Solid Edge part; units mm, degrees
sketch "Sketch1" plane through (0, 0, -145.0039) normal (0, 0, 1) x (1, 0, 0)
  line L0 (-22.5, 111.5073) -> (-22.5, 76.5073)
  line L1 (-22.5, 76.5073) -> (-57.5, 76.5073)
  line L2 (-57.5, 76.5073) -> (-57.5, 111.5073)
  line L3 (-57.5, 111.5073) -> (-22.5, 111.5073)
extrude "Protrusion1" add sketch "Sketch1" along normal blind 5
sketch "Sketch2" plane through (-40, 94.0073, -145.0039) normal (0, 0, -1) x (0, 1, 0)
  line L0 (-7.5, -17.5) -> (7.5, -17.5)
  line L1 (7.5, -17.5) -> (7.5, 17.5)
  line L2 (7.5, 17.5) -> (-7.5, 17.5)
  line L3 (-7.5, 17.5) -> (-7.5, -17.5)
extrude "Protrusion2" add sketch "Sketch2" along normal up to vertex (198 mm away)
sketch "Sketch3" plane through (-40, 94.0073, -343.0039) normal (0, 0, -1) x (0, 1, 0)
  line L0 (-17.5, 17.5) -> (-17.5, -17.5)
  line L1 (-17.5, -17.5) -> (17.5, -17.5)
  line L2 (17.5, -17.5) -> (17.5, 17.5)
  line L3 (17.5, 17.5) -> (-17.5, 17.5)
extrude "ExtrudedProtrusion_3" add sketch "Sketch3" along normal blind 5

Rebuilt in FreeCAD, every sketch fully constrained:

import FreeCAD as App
import Part
import Sketcher

V = App.Vector
Q = App.Units.Quantity

doc = App.newDocument("Part")
body = doc.addObject("PartDesign::Body", "Body")

# Sketch on XY plane
sketch1 = doc.addObject("Sketcher::SketchObject", "Sketch")
body.addObject(sketch1)
sketch1.AttachmentSupport = (doc.XY_Plane, [""])
sketch1.MapMode = "FlatFace"
sketch1.AttachmentOffset = App.Placement(V(0, 0, -145.0039), App.Rotation())
sketch1.addGeometry(Part.LineSegment(V(-22.5, 76.5073, 0), V(-22.5, 111.5073, 0)), False)
sketch1.addGeometry(Part.LineSegment(V(-22.5, 111.5073, 0), V(-57.5, 111.5073, 0)), False)
sketch1.addGeometry(Part.LineSegment(V(-57.5, 111.5073, 0), V(-57.5, 76.5073, 0)), False)
sketch1.addGeometry(Part.LineSegment(V(-57.5, 76.5073, 0), V(-22.5, 76.5073, 0)), False)
sketch1.addConstraint(Sketcher.Constraint("Coincident", 0, 2, 1, 1))
sketch1.addConstraint(Sketcher.Constraint("Coincident", 1, 2, 2, 1))
sketch1.addConstraint(Sketcher.Constraint("Coincident", 2, 2, 3, 1))
sketch1.addConstraint(Sketcher.Constraint("Coincident", 3, 2, 0, 1))
sketch1.addConstraint(Sketcher.Constraint("Vertical", 0))
sketch1.addConstraint(Sketcher.Constraint("Horizontal", 1))
sketch1.addConstraint(Sketcher.Constraint("Vertical", 2))
sketch1.addConstraint(Sketcher.Constraint("Horizontal", 3))
sketch1.addConstraint(Sketcher.Constraint("Equal", 3, 0))
sketch1.addConstraint(Sketcher.Constraint("DistanceX", 1, 2, 1, 1, Q("35 mm")))
sketch1.addConstraint(Sketcher.Constraint("DistanceX", 0, 2, -1, 1, Q("22.5 mm")))
sketch1.addConstraint(Sketcher.Constraint("DistanceY", -1, 1, 0, 2, Q("111.5073 mm")))
pad1 = doc.addObject("PartDesign::Pad", "Pad")
body.addObject(pad1)
pad1.Profile = sketch1
pad1.Length = 5

# Sketch on XY plane
sketch2 = doc.addObject("Sketcher::SketchObject", "Sketch001")
body.addObject(sketch2)
sketch2.AttachmentSupport = (doc.XY_Plane, [""])
sketch2.MapMode = "FlatFace"
sketch2.AttachmentOffset = App.Placement(V(0, 0, -145.0039), App.Rotation())
sketch2.addGeometry(Part.LineSegment(V(-22.5, 86.5073, 0), V(-57.5, 86.5073, 0)), False)
sketch2.addGeometry(Part.LineSegment(V(-57.5, 86.5073, 0), V(-57.5, 101.5073, 0)), False)
sketch2.addGeometry(Part.LineSegment(V(-57.5, 101.5073, 0), V(-22.5, 101.5073, 0)), False)
sketch2.addGeometry(Part.LineSegment(V(-22.5, 101.5073, 0), V(-22.5, 86.5073, 0)), False)
sketch2.addConstraint(Sketcher.Constraint("Coincident", 0, 2, 1, 1))
sketch2.addConstraint(Sketcher.Constraint("Coincident", 1, 2, 2, 1))
sketch2.addConstraint(Sketcher.Constraint("Coincident", 2, 2, 3, 1))
sketch2.addConstraint(Sketcher.Constraint("Coincident", 3, 2, 0, 1))
sketch2.addConstraint(Sketcher.Constraint("Horizontal", 0))
sketch2.addConstraint(Sketcher.Constraint("Vertical", 1))
sketch2.addConstraint(Sketcher.Constraint("Horizontal", 2))
sketch2.addConstraint(Sketcher.Constraint("Vertical", 3))
sketch2.addConstraint(Sketcher.Constraint("DistanceX", 0, 2, 0, 1, Q("35 mm")))
sketch2.addConstraint(Sketcher.Constraint("DistanceY", 1, 1, 1, 2, Q("15 mm")))
sketch2.addConstraint(Sketcher.Constraint("DistanceX", 0, 2, -1, 1, Q("57.5 mm")))
sketch2.addConstraint(Sketcher.Constraint("DistanceY", -1, 1, 0, 2, Q("86.5073 mm")))
pad2 = doc.addObject("PartDesign::Pad", "Pad001")
body.addObject(pad2)
pad2.Profile = sketch2
pad2.Length = 198
pad2.Reversed = True

# Sketch on XY plane
sketch3 = doc.addObject("Sketcher::SketchObject", "Sketch002")
body.addObject(sketch3)
sketch3.AttachmentSupport = (doc.XY_Plane, [""])
sketch3.MapMode = "FlatFace"
sketch3.AttachmentOffset = App.Placement(V(0, 0, -343.0039), App.Rotation())
sketch3.addGeometry(Part.LineSegment(V(-22.5, 111.5073, 0), V(-22.5, 76.5073, 0)), False)
sketch3.addGeometry(Part.LineSegment(V(-22.5, 76.5073, 0), V(-57.5, 76.5073, 0)), False)
sketch3.addGeometry(Part.LineSegment(V(-57.5, 76.5073, 0), V(-57.5, 111.5073, 0)), False)
sketch3.addGeometry(Part.LineSegment(V(-57.5, 111.5073, 0), V(-22.5, 111.5073, 0)), False)
sketch3.addConstraint(Sketcher.Constraint("Coincident", 0, 2, 1, 1))
sketch3.addConstraint(Sketcher.Constraint("Coincident", 1, 2, 2, 1))
sketch3.addConstraint(Sketcher.Constraint("Coincident", 2, 2, 3, 1))
sketch3.addConstraint(Sketcher.Constraint("Coincident", 3, 2, 0, 1))
sketch3.addConstraint(Sketcher.Constraint("Vertical", 0))
sketch3.addConstraint(Sketcher.Constraint("Horizontal", 1))
sketch3.addConstraint(Sketcher.Constraint("Vertical", 2))
sketch3.addConstraint(Sketcher.Constraint("Horizontal", 3))
sketch3.addConstraint(Sketcher.Constraint("Equal", 3, 0))
sketch3.addConstraint(Sketcher.Constraint("DistanceX", 1, 2, 1, 1, Q("35 mm")))
sketch3.addConstraint(Sketcher.Constraint("DistanceX", 0, 2, -1, 1, Q("22.5 mm")))
sketch3.addConstraint(Sketcher.Constraint("DistanceY", -1, 1, 0, 2, Q("76.5073 mm")))
pad3 = doc.addObject("PartDesign::Pad", "Pad002")
body.addObject(pad3)
pad3.Profile = sketch3
pad3.Length = 5
pad3.Reversed = True

doc.recompute()
